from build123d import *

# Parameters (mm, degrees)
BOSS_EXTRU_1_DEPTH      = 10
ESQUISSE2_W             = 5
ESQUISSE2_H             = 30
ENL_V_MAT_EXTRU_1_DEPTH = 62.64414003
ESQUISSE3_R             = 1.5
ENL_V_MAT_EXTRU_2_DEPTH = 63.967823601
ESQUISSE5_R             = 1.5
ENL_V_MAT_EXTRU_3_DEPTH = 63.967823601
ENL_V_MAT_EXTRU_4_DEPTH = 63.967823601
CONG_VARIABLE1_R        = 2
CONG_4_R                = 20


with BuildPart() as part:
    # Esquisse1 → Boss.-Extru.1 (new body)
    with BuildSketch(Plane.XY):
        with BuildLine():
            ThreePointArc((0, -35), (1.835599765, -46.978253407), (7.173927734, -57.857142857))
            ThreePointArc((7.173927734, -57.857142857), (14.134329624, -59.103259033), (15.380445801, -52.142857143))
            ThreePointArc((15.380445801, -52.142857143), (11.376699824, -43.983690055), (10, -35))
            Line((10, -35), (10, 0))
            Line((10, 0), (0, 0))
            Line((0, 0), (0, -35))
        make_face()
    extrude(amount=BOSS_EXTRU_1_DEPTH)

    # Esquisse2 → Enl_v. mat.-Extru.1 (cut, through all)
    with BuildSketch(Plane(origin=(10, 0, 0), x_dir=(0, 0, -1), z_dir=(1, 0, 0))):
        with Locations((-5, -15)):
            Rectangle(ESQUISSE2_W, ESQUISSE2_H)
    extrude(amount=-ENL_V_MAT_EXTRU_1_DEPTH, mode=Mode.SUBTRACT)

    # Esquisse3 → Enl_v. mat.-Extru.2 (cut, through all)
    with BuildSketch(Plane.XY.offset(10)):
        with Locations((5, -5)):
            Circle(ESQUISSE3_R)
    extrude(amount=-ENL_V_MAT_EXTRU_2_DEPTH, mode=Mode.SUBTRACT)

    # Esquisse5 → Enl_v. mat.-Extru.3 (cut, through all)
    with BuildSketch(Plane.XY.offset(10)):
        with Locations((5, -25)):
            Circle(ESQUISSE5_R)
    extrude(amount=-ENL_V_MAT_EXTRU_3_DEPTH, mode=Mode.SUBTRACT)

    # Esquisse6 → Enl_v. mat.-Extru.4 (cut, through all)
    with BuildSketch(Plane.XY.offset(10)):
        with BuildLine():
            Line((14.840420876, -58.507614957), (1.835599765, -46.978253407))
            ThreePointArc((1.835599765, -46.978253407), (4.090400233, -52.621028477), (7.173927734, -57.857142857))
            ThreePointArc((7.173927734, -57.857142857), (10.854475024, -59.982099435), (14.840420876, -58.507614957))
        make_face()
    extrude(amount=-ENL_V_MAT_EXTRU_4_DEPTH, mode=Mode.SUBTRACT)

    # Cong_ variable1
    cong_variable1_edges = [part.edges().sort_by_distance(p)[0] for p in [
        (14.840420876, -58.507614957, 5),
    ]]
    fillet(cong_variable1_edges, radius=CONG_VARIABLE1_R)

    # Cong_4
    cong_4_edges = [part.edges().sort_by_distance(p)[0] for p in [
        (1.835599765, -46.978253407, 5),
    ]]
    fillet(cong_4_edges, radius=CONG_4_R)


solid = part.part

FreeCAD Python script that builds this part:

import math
import FreeCAD as App
import Part
import Sketcher

V = App.Vector
Q = App.Units.Quantity


def edges_at(feature, points):
    """Names of the edges that pass closest to the given points."""
    edges = feature.Shape.Edges
    near = lambda p: min(range(len(edges)), key=lambda i: edges[i].distToShape(Part.Vertex(*p))[0])
    return sorted({f"Edge{near(p) + 1}" for p in points})


def add_polygon(sketch, points):
    """Adds a closed chain of lines whose ends are joined by coincident constraints."""
    first, n = sketch.GeometryCount, len(points)
    for a, b in zip(points, points[1:] + points[:1]):
        sketch.addGeometry(Part.LineSegment(App.Vector(*a, 0), App.Vector(*b, 0)), False)
    for i in range(n):
        sketch.addConstraint(Sketcher.Constraint("Coincident", first + i, 2, first + (i + 1) % n, 1))

doc = App.newDocument("Part")
body = doc.addObject("PartDesign::Body", "Body")

# Sketch on XY plane
sketch1 = body.newObject("Sketcher::SketchObject", "Sketch")
sketch1.AttachmentSupport = (doc.getObject("XY_Plane"), [""])
sketch1.MapMode = "FlatFace"
sketch1.addGeometry([
    Part.ArcOfCircle(Part.Circle(V(40, -35, 0), V(0, 0, 1), 40), math.radians(-180), math.radians(-145)),  # 0
    Part.ArcOfCircle(Part.Circle(V(11, -55, 0), V(0, 0, 1), 5), math.radians(-145), math.radians(35)),  # 1
    Part.ArcOfCircle(Part.Circle(V(40, -35, 0), V(0, 0, 1), 30), math.radians(-180), math.radians(-145)),  # 2
    Part.LineSegment(V(10, -35, 0), V(10, 0, 0)),  # 3
    Part.LineSegment(V(10, 0, 0), V(0, 0, 0)),  # 4
    Part.LineSegment(V(0, 0, 0), V(0, -35, 0)),  # 5
], False)
sketch1.addConstraint([
    Sketcher.Constraint("Tangent", 0, 2, 1, 1),
    Sketcher.Constraint("Tangent", 1, 2, 2, 2),
    Sketcher.Constraint("Tangent", 2, 1, 3, 1),
    Sketcher.Constraint("Coincident", 3, 2, 4, 1),
    Sketcher.Constraint("Coincident", 4, 2, 5, 1),
    Sketcher.Constraint("Tangent", 5, 2, 0, 1),
    Sketcher.Constraint("Vertical", 3),
    Sketcher.Constraint("Horizontal", 4),
    Sketcher.Constraint("Vertical", 5),
    Sketcher.Constraint("Coincident", 4, 2, -1, 1),
    Sketcher.Constraint("Coincident", 2, 3, 0, 3),
    Sketcher.Constraint("Radius", 0, Q("40 mm")),
    Sketcher.Constraint("Radius", 1, Q("5 mm")),
    Sketcher.Constraint("DistanceY", 3, 1, 3, 2, Q("35 mm")),
    Sketcher.Constraint("DistanceY", 1, 3, -1, 1, Q("55 mm")),
])
pad1 = body.newObject("PartDesign::Pad", "Pad")
pad1.Profile = sketch1
pad1.Length = 10

# Sketch on YZ plane
sketch2 = body.newObject("Sketcher::SketchObject", "Sketch001")
sketch2.AttachmentSupport = (doc.getObject("YZ_Plane"), [""])
sketch2.MapMode = "FlatFace"
sketch2.AttachmentOffset = App.Placement(V(0, 0, 10), App.Rotation())
add_polygon(sketch2, [(0, 8), (-30, 8), (-30, 2), (0, 2)])  # lines 0-3
sketch2.addConstraint([
    Sketcher.Constraint("Horizontal", 0),
    Sketcher.Constraint("Vertical", 1),
    Sketcher.Constraint("Horizontal", 2),
    Sketcher.Constraint("Vertical", 3),
    Sketcher.Constraint("PointOnObject", 2, 2, -2),
    Sketcher.Constraint("DistanceX", 0, 2, 0, 1, Q("30 mm")),
    Sketcher.Constraint("DistanceY", 1, 2, 1, 1, Q("5 mm")),
    Sketcher.Constraint("DistanceY", -1, 1, 0, 2, Q("7.5 mm")),
])
pocket1 = body.newObject("PartDesign::Pocket", "Pocket")
pocket1.Profile = sketch2
pocket1.Type = "ThroughAll"

# Sketch on XY plane
sketch3 = body.newObject("Sketcher::SketchObject", "Sketch002")
sketch3.AttachmentSupport = (doc.getObject("XY_Plane"), [""])
sketch3.MapMode = "FlatFace"
sketch3.AttachmentOffset = App.Placement(V(0, 0, 10), App.Rotation())
sketch3.addGeometry(Part.Circle(V(5, -5, 0), V(0, 0, 1), 1.5), False)
sketch3.addConstraint([
    Sketcher.Constraint("Diameter", 0, Q("3 mm")),
    Sketcher.Constraint("DistanceX", -1, 1, 0, 3, Q("5 mm")),
    Sketcher.Constraint("DistanceY", 0, 3, -1, 1, Q("5 mm")),
])
pocket2 = body.newObject("PartDesign::Pocket", "Pocket001")
pocket2.Profile = sketch3
pocket2.Type = "ThroughAll"

# Sketch on XY plane
sketch4 = body.newObject("Sketcher::SketchObject", "Sketch003")
sketch4.AttachmentSupport = (doc.getObject("XY_Plane"), [""])
sketch4.MapMode = "FlatFace"
sketch4.AttachmentOffset = App.Placement(V(0, 0, 10), App.Rotation())
sketch4.addGeometry(Part.Circle(V(5, -25, 0), V(0, 0, 1), 1.5), False)
sketch4.addConstraint([
    Sketcher.Constraint("Diameter", 0, Q("3 mm")),
    Sketcher.Constraint("DistanceX", -1, 1, 0, 3, Q("5 mm")),
    Sketcher.Constraint("DistanceY", 0, 3, -1, 1, Q("25 mm")),
])
pocket3 = body.newObject("PartDesign::Pocket", "Pocket002")
pocket3.Profile = sketch4
pocket3.Type = "ThroughAll"

# Sketch on XY plane
sketch5 = body.newObject("Sketcher::SketchObject", "Sketch004")
sketch5.AttachmentSupport = (doc.getObject("XY_Plane"), [""])
sketch5.MapMode = "FlatFace"
sketch5.AttachmentOffset = App.Placement(V(0, 0, 10), App.Rotation())
sketch5.addGeometry([
    Part.LineSegment(V(15, -59, 0), V(2, -47, 0)),
    Part.ArcOfCircle(Part.Circle(V(40, -35, 0), V(0, 0, 1), 40), math.radians(-162.58), math.radians(-145.15)),
    Part.ArcOfCircle(Part.Circle(V(11, -55, 0), V(0, 0, 1), 5), math.radians(-145), math.radians(-45)),
], False)
sketch5.addConstraint([
    Sketcher.Constraint("Coincident", 0, 2, 1, 1),
    Sketcher.Constraint("Tangent", 1, 2, 2, 1),
    Sketcher.Constraint("Coincident", 2, 2, 0, 1),
    Sketcher.Constraint("Radius", 1, Q("40 mm")),
    Sketcher.Constraint("Radius", 2, Q("5 mm")),
    Sketcher.Constraint("DistanceX", -1, 1, 1, 3, Q("40 mm")),
    Sketcher.Constraint("DistanceY", 1, 3, -1, 1, Q("35 mm")),
    Sketcher.Constraint("DistanceY", 2, 3, -1, 1, Q("55 mm")),
    Sketcher.Constraint("DistanceX", -1, 1, 0, 2, Q("1.8356 mm")),
    Sketcher.Constraint("Distance", 0, Q("17.37963 mm")),
])
pocket4 = body.newObject("PartDesign::Pocket", "Pocket003")
pocket4.Profile = sketch5
pocket4.Type = "ThroughAll"
doc.recompute()

fillet = body.newObject("PartDesign::Fillet", "Fillet")
fillet.Base = (pocket4, edges_at(pocket4, [(14.84, -58.508, 5)]))
fillet.Radius = 2
doc.recompute()

fillet2 = body.newObject("PartDesign::Fillet", "Fillet001")
fillet2.Base = (fillet, edges_at(fillet, [(1.836, -46.978, 5)]))
fillet2.Radius = 20

doc.recompute()
